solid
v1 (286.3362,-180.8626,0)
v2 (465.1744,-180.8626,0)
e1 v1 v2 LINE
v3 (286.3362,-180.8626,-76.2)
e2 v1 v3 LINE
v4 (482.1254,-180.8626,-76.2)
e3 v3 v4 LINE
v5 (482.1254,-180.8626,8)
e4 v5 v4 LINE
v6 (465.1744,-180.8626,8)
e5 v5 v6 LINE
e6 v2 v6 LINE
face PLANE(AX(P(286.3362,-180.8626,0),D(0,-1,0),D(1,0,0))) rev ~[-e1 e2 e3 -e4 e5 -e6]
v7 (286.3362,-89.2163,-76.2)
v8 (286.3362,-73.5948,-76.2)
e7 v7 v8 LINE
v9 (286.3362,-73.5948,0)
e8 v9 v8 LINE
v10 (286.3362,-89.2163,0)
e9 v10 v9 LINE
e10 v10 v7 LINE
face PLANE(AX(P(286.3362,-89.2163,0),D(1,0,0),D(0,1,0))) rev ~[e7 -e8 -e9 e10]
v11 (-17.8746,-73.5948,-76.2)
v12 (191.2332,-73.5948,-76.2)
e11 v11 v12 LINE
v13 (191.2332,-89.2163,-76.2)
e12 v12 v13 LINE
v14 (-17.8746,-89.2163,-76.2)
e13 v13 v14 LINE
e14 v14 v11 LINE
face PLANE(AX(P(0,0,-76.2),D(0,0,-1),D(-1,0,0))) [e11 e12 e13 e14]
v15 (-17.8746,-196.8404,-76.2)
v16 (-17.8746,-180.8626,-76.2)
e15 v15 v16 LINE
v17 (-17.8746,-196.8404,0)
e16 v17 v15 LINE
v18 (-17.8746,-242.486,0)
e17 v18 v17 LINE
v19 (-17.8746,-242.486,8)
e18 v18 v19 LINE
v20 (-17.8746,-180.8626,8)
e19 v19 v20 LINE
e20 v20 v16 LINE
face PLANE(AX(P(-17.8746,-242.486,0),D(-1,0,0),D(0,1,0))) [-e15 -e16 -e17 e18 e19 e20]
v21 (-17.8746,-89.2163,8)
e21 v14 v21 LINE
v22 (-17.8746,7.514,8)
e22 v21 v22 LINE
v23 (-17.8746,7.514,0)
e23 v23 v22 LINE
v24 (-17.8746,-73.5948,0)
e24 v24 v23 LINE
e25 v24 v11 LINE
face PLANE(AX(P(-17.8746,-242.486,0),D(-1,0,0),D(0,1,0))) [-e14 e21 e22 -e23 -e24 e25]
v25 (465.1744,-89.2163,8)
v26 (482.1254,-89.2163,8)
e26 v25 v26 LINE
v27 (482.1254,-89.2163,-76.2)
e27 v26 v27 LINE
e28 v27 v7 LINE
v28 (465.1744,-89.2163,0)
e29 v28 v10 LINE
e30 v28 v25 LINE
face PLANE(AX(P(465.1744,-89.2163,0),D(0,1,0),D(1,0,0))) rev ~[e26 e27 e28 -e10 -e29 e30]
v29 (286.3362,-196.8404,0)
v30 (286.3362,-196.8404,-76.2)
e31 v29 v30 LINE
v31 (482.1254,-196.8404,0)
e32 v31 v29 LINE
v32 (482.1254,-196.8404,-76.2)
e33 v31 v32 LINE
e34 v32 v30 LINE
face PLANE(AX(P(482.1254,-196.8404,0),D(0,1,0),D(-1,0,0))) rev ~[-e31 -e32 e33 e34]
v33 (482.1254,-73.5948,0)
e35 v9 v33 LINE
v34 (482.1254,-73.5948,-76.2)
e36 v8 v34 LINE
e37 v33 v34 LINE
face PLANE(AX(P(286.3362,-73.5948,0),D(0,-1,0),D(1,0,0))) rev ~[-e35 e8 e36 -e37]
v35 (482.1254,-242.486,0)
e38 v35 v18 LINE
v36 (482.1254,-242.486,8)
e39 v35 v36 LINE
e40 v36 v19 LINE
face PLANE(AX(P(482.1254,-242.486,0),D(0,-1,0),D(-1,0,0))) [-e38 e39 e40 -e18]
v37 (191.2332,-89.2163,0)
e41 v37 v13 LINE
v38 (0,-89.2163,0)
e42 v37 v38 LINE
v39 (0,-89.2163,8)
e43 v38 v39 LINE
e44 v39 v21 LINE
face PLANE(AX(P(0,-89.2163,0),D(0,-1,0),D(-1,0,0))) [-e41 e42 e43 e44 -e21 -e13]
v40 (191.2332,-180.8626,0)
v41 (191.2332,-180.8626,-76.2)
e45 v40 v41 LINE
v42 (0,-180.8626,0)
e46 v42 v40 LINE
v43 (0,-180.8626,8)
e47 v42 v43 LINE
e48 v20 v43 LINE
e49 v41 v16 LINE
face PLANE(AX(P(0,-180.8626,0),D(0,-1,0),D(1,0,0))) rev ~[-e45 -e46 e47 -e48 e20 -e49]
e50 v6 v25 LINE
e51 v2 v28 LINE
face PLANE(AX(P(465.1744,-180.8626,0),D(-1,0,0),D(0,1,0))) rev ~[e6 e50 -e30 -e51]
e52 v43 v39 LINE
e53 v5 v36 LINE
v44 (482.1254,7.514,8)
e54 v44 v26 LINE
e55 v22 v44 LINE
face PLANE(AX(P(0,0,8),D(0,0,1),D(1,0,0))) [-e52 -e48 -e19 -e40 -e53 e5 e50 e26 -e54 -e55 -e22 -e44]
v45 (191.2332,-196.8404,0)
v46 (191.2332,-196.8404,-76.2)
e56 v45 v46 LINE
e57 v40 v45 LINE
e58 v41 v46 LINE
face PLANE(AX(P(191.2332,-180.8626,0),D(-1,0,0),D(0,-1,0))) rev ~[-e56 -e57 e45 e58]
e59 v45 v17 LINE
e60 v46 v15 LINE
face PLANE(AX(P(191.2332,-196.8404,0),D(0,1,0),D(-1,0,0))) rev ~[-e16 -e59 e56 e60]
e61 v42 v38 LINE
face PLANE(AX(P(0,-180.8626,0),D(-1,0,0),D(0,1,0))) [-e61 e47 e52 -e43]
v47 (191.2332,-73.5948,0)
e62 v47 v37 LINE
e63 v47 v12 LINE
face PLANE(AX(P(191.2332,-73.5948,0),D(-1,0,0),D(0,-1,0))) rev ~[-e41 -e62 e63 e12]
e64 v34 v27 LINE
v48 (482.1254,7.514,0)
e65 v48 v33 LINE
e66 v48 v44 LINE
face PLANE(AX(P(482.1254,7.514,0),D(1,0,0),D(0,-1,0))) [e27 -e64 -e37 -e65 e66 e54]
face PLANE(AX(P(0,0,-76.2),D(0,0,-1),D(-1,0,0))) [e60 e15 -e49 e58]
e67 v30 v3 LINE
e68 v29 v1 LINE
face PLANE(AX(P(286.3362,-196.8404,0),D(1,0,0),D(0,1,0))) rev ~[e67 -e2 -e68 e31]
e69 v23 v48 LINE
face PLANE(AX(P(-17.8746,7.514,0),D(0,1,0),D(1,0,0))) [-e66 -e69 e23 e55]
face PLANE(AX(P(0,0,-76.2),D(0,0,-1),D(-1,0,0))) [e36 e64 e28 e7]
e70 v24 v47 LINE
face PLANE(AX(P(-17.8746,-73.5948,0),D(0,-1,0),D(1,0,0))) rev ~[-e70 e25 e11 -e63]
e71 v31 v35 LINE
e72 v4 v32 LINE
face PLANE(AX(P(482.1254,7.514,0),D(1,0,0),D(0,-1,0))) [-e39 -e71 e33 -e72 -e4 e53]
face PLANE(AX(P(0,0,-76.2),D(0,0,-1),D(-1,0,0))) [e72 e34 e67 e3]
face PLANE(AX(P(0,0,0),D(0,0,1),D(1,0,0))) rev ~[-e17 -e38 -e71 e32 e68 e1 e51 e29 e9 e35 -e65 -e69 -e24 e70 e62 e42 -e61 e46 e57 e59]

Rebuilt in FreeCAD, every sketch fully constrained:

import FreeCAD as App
import Part
import Sketcher

V = App.Vector


def add_polygon(sketch, points):
    """Adds a closed chain of lines whose ends are joined by coincident constraints."""
    first, n = sketch.GeometryCount, len(points)
    for a, b in zip(points, points[1:] + points[:1]):
        sketch.addGeometry(Part.LineSegment(App.Vector(*a, 0), App.Vector(*b, 0)), False)
    for i in range(n):
        sketch.addConstraint(Sketcher.Constraint("Coincident", first + i, 2, first + (i + 1) % n, 1))

doc = App.newDocument("Part")
params = doc.addObject("Spreadsheet::Sheet", "Params")
for row, (alias, value) in enumerate([
    ("sketch1_width", "500 mm"),
    ("sketch1_height", "250 mm"),
    ("pad1_length", "8 mm"),
    ("pocket1_length", "8 mm"),
    ("pad2_length", "76.2 mm"),
], start=1):
    params.set(f"A{row}", alias)
    params.set(f"B{row}", "=" + value)
    params.setAlias(f"B{row}", alias)

body = doc.addObject("PartDesign::Body", "Body")

sketch1 = body.newObject("Sketcher::SketchObject", "Sketch")
sketch1.AttachmentSupport = (doc.getObject("XY_Plane"), [""])
sketch1.MapMode = "FlatFace"
add_polygon(sketch1, [(482, 8), (-18, 8), (-18, -242), (482, -242)])
sketch1.addConstraint([
    Sketcher.Constraint("Horizontal", 0),
    Sketcher.Constraint("Vertical", 1),
    Sketcher.Constraint("Horizontal", 2),
    Sketcher.Constraint("Vertical", 3),
    Sketcher.Constraint("DistanceX", 0, 2, 0, 1, 500.0),
    Sketcher.Constraint("DistanceY", 1, 2, 1, 1, 250.0),
    Sketcher.Constraint("DistanceY", -1, 1, 0, 2, 7.514),
    Sketcher.Constraint("DistanceX", 0, 2, -1, 1, 17.8746),
])
sketch1.setExpression("Constraints[8]", "Params.sketch1_width")
sketch1.setExpression("Constraints[9]", "Params.sketch1_height")
pad1 = body.newObject("PartDesign::Pad", "Pad")
pad1.Profile = sketch1
pad1.setExpression("Length", "Params.pad1_length")

sketch2 = body.newObject("Sketcher::SketchObject", "Sketch001")
sketch2.AttachmentSupport = (doc.getObject("XY_Plane"), [""])
sketch2.MapMode = "FlatFace"
add_polygon(sketch2, [(-18, -181), (-18, -89), (0, -89), (0, -181)])
add_polygon(sketch2, [(482, -89), (482, -181), (465, -181), (465, -89)])
sketch2.addConstraint([
    Sketcher.Constraint("Vertical", 0),
    Sketcher.Constraint("Horizontal", 1),
    Sketcher.Constraint("Vertical", 2),
    Sketcher.Constraint("Horizontal", 3),
    Sketcher.Constraint("Vertical", 4),
    Sketcher.Constraint("Horizontal", 5),
    Sketcher.Constraint("Vertical", 6),
    Sketcher.Constraint("Horizontal", 7),
    Sketcher.Constraint("PointOnObject", 1, 2, -2),
    Sketcher.Constraint("Horizontal", 3, 2, 4, 2),
    Sketcher.Constraint("Horizontal", 1, 2, 6, 2),
    Sketcher.Constraint("DistanceX", 3, 2, 4, 2, 500.0),
    Sketcher.Constraint("DistanceX", 5, 2, 5, 1, 16.951),
    Sketcher.Constraint("DistanceX", 1, 1, 1, 2, 17.8746),
    Sketcher.Constraint("DistanceY", 0, 1, 0, 2, 91.6463),
    Sketcher.Constraint("DistanceY", 0, 2, -1, 1, 89.2163),
])
pocket1 = body.newObject("PartDesign::Pocket", "Pocket")
pocket1.Profile = sketch2
pocket1.setExpression("Length", "Params.pocket1_length")
pocket1.Reversed = True

sketch3 = body.newObject("Sketcher::SketchObject", "Sketch002")
sketch3.AttachmentSupport = (doc.getObject("XY_Plane"), [""])
sketch3.MapMode = "FlatFace"
add_polygon(sketch3, [(191, -89), (-18, -89), (-18, -74), (191, -74)])
add_polygon(sketch3, [(-18, -197), (-18, -181), (191, -181), (191, -197)])
add_polygon(sketch3, [(286, -74), (482, -74), (482, -89), (286, -89)])
add_polygon(sketch3, [(286, -181), (482, -181), (482, -197), (286, -197)])
sketch3.addConstraint([
    Sketcher.Constraint("Horizontal", 0),
    Sketcher.Constraint("Vertical", 1),
    Sketcher.Constraint("Horizontal", 2),
    Sketcher.Constraint("Vertical", 3),
    Sketcher.Constraint("Vertical", 4),
    Sketcher.Constraint("Horizontal", 5),
    Sketcher.Constraint("Vertical", 6),
    Sketcher.Constraint("Horizontal", 7),
    Sketcher.Constraint("Horizontal", 8),
    Sketcher.Constraint("Vertical", 9),
    Sketcher.Constraint("Horizontal", 10),
    Sketcher.Constraint("Vertical", 11),
    Sketcher.Constraint("Horizontal", 12),
    Sketcher.Constraint("Vertical", 13),
    Sketcher.Constraint("Horizontal", 14),
    Sketcher.Constraint("Vertical", 15),
    Sketcher.Constraint("Horizontal", 2, 2, 8, 2),
    Sketcher.Constraint("Horizontal", 3, 2, 9, 2),
    Sketcher.Constraint("Horizontal", 5, 2, 12, 2),
    Sketcher.Constraint("Horizontal", 7, 2, 13, 2),
    Sketcher.Constraint("Vertical", 1, 2, 4, 2),
    Sketcher.Constraint("Vertical", 3, 2, 5, 2),
    Sketcher.Constraint("Vertical", 9, 2, 12, 2),
    Sketcher.Constraint("Vertical", 11, 2, 14, 2),
    Sketcher.Constraint("DistanceX", 1, 2, 8, 2, 500.0),
    Sketcher.Constraint("DistanceX", 0, 2, 0, 1, 209.1078),
    Sketcher.Constraint("DistanceX", 8, 1, 8, 2, 195.7892),
    Sketcher.Constraint("DistanceY", 1, 1, 1, 2, 15.6215),
    Sketcher.Constraint("DistanceY", 4, 1, 4, 2, 15.9778),
    Sketcher.Constraint("DistanceY", 6, 2, 3, 2, 107.624),
    Sketcher.Constraint("DistanceX", 0, 2, -1, 1, 17.8746),
    Sketcher.Constraint("DistanceY", 0, 2, -1, 1, 89.2163),
])
pad2 = body.newObject("PartDesign::Pad", "Pad001")
pad2.Profile = sketch3
pad2.setExpression("Length", "Params.pad2_length")
pad2.Reversed = True

doc.recompute()
